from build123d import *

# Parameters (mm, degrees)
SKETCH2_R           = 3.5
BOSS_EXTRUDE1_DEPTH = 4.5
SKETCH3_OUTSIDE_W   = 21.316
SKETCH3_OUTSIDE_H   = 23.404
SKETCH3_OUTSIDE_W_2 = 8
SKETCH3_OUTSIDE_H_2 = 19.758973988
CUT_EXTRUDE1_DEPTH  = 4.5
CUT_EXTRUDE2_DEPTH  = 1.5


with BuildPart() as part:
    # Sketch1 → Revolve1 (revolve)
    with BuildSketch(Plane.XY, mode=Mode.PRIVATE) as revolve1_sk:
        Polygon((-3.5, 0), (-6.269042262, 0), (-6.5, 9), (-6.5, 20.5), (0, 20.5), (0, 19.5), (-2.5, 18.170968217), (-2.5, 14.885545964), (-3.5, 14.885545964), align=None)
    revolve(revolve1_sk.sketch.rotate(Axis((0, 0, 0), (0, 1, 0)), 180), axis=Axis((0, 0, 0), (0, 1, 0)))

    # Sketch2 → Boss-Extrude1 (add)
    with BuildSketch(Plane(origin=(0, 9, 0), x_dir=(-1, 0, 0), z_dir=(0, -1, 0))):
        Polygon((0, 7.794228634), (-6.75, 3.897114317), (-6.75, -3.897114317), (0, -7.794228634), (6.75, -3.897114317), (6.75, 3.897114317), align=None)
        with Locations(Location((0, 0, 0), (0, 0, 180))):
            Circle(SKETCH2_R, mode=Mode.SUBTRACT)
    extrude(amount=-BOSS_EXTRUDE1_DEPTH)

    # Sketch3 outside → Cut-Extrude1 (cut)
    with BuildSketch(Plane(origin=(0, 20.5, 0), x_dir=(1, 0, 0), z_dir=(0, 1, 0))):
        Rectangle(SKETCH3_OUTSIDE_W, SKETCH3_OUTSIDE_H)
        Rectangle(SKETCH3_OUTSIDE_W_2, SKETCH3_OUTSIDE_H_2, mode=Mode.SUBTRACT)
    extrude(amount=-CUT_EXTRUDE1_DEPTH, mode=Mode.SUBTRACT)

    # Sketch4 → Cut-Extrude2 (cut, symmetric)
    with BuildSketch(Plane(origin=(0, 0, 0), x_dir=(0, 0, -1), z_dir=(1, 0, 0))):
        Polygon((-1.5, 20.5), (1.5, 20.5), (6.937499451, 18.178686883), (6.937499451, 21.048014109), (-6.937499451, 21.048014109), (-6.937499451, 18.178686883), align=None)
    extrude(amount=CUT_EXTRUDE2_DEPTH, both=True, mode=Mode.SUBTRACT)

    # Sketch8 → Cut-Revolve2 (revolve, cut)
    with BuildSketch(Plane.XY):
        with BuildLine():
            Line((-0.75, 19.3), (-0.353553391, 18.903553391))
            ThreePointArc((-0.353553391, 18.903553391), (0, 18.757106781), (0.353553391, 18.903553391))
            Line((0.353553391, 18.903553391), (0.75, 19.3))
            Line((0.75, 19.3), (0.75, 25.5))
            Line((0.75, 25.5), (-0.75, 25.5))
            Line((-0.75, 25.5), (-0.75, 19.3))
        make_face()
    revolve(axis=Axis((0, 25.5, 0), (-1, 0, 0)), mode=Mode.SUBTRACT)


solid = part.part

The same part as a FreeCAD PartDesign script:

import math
import FreeCAD as App
import Part
import Sketcher
from FreeCAD import Vector
Q = App.Units.Quantity


def add_polygon(sketch, points):
    """Adds a closed chain of lines whose ends are joined by coincident constraints."""
    first, n = sketch.GeometryCount, len(points)
    for a, b in zip(points, points[1:] + points[:1]):
        sketch.addGeometry(Part.LineSegment(App.Vector(*a, 0), App.Vector(*b, 0)), False)
    for i in range(n):
        sketch.addConstraint(Sketcher.Constraint("Coincident", first + i, 2, first + (i + 1) % n, 1))

doc = App.newDocument("Part")
body = doc.addObject("PartDesign::Body", "Body")

# Sketch on XY plane
sketch1 = body.newObject("Sketcher::SketchObject", "Sketch")
sketch1.AttachmentSupport = (doc.getObject("XY_Plane"), [""])
sketch1.MapMode = "FlatFace"
add_polygon(sketch1, [(-6.269042, 0), (-3.5, 0), (-3.5, 14.885546), (-2.5, 14.885546), (-2.5, 18.170968), (0, 19.5), (0, 20.5), (-6.5, 20.5), (-6.5, 9)])  # lines 0-8
sketch1.addConstraint(Sketcher.Constraint("Horizontal", 0))
sketch1.addConstraint(Sketcher.Constraint("Vertical", 1))
sketch1.addConstraint(Sketcher.Constraint("Horizontal", 2))
sketch1.addConstraint(Sketcher.Constraint("Vertical", 3))
sketch1.addConstraint(Sketcher.Constraint("Vertical", 5))
sketch1.addConstraint(Sketcher.Constraint("Horizontal", 6))
sketch1.addConstraint(Sketcher.Constraint("Vertical", 7))
sketch1.addConstraint(Sketcher.Constraint("PointOnObject", 0, 2, -1))
sketch1.addConstraint(Sketcher.Constraint("PointOnObject", 4, 2, -2))
sketch1.addConstraint(Sketcher.Constraint("Equal", 2, 5))
sketch1.addConstraint(Sketcher.Constraint("DistanceX", 2, 1, 2, 2, 1.0))
sketch1.addConstraint(Sketcher.Constraint("DistanceX", 6, 2, 6, 1, 6.5))
sketch1.addConstraint(Sketcher.Constraint("DistanceY", 7, 2, 7, 1, 11.5))
sketch1.addConstraint(Sketcher.Constraint("DistanceY", -1, 1, 7, 2, 9.0))
sketch1.addConstraint(Sketcher.Constraint("DistanceX", 6, 2, 3, 2, 4.0))
sketch1.addConstraint(Sketcher.Constraint("Angle", 8, Q("-88.53 deg")))
sketch1.addConstraint(Sketcher.Constraint("Distance", 4, 2.831312))
sketch1.addConstraint(Sketcher.Constraint("DistanceY", 1, 1, 1, 2, 14.885546))
revolution = body.newObject("PartDesign::Revolution", "Revolution")
revolution.Profile = sketch1
revolution.ReferenceAxis = (sketch1, ["V_Axis"])
revolution.Angle = 360

# Sketch on XZ plane
sketch2 = body.newObject("Sketcher::SketchObject", "Sketch001")
sketch2.AttachmentSupport = (doc.getObject("XZ_Plane"), [""])
sketch2.MapMode = "FlatFace"
sketch2.AttachmentOffset = App.Placement(Vector(0, 0, -9), App.Rotation())
add_polygon(sketch2, [(0, -7.794229), (6.75, -3.897114), (6.75, 3.897114), (0, 7.794229), (-6.75, 3.897114), (-6.75, -3.897114)])  # lines 0-5
sketch2.addGeometry(Part.Circle(Vector(0, 0, 0), Vector(0, 0, 1), 3.5), False)  # 6
sketch2.addConstraint(Sketcher.Constraint("Vertical", 1))
sketch2.addConstraint(Sketcher.Constraint("Vertical", 4))
sketch2.addConstraint(Sketcher.Constraint("Coincident", 6, 3, -1, 1))
sketch2.addConstraint(Sketcher.Constraint("Symmetric", 0, 2, 3, 2, -1, 1))
sketch2.addConstraint(Sketcher.Constraint("Symmetric", 2, 2, 5, 2, -1, 1))
sketch2.addConstraint(Sketcher.Constraint("PointOnObject", 2, 2, -2))
sketch2.addConstraint(Sketcher.Constraint("Parallel", 2, 5))
sketch2.addConstraint(Sketcher.Constraint("Horizontal", 1, 2, 3, 2))
sketch2.addConstraint(Sketcher.Constraint("Diameter", 6, 7.0))
sketch2.addConstraint(Sketcher.Constraint("Angle", 0, Q("30 deg")))
sketch2.addConstraint(Sketcher.Constraint("DistanceX", 3, 2, 1, 2, 13.5))
sketch2.addConstraint(Sketcher.Constraint("DistanceY", 1, 1, 1, 2, 7.794229))
pad1 = body.newObject("PartDesign::Pad", "Pad")
pad1.Profile = sketch2
pad1.Length = 4.5
pad1.Reversed = True

# Sketch on XZ plane
sketch3 = body.newObject("Sketcher::SketchObject", "Sketch002")
sketch3.AttachmentSupport = (doc.getObject("XZ_Plane"), [""])
sketch3.MapMode = "FlatFace"
sketch3.AttachmentOffset = App.Placement(Vector(0, 0, -20.5), App.Rotation())
add_polygon(sketch3, [(-10.658, -11.702), (-10.658, 11.702), (10.658, 11.702), (10.658, -11.702)])  # lines 0-3
add_polygon(sketch3, [(4, 9.879487), (-4, 9.879487), (-4, -9.879487), (4, -9.879487)])  # lines 4-7
sketch3.addConstraint(Sketcher.Constraint("Vertical", 0))
sketch3.addConstraint(Sketcher.Constraint("Horizontal", 1))
sketch3.addConstraint(Sketcher.Constraint("Vertical", 2))
sketch3.addConstraint(Sketcher.Constraint("Horizontal", 3))
sketch3.addConstraint(Sketcher.Constraint("Horizontal", 4))
sketch3.addConstraint(Sketcher.Constraint("Vertical", 5))
sketch3.addConstraint(Sketcher.Constraint("Horizontal", 6))
sketch3.addConstraint(Sketcher.Constraint("Vertical", 7))
sketch3.addConstraint(Sketcher.Constraint("Symmetric", 0, 2, 2, 2, -1, 1))
sketch3.addConstraint(Sketcher.Constraint("Symmetric", 4, 2, 6, 2, -1, 1))
sketch3.addConstraint(Sketcher.Constraint("DistanceX", 4, 2, 4, 1, 8.0))
sketch3.addConstraint(Sketcher.Constraint("DistanceX", 1, 1, 1, 2, 21.316))
sketch3.addConstraint(Sketcher.Constraint("DistanceY", 0, 1, 0, 2, 23.404))
sketch3.addConstraint(Sketcher.Constraint("DistanceY", 5, 2, 5, 1, 19.758974))
pocket1 = body.newObject("PartDesign::Pocket", "Pocket")
pocket1.Profile = sketch3
pocket1.Length = 4.5
pocket1.Reversed = True

# Sketch on YZ plane
sketch4 = body.newObject("Sketcher::SketchObject", "Sketch003")
sketch4.AttachmentSupport = (doc.getObject("YZ_Plane"), [""])
sketch4.MapMode = "FlatFace"
add_polygon(sketch4, [(20.5, 1.5), (20.5, -1.5), (18.178687, -6.937499), (21.048014, -6.937499), (21.048014, 6.937499), (18.178687, 6.937499)])  # lines 0-5
sketch4.addConstraint(Sketcher.Constraint("Vertical", 0))
sketch4.addConstraint(Sketcher.Constraint("Horizontal", 2))
sketch4.addConstraint(Sketcher.Constraint("Vertical", 3))
sketch4.addConstraint(Sketcher.Constraint("Horizontal", 4))
sketch4.addConstraint(Sketcher.Constraint("Symmetric", 1, 2, 4, 2, -1))
sketch4.addConstraint(Sketcher.Constraint("Equal", 1, 5))
sketch4.addConstraint(Sketcher.Constraint("DistanceY", 0, 2, 0, 1, 3.0))
sketch4.addConstraint(Sketcher.Constraint("DistanceX", -1, 1, 0, 2, 20.5))
sketch4.addConstraint(Sketcher.Constraint("DistanceY", 3, 1, 3, 2, 13.874999))
sketch4.addConstraint(Sketcher.Constraint("DistanceX", 2, 1, 2, 2, 2.869327))
sketch4.addConstraint(Sketcher.Constraint("Distance", 1, 5.912266))
pocket2 = body.newObject("PartDesign::Pocket", "Pocket001")
pocket2.Profile = sketch4
pocket2.Length = 3
pocket2.Midplane = True

# Sketch on XY plane
sketch5 = body.newObject("Sketcher::SketchObject", "Sketch004")
sketch5.AttachmentSupport = (doc.getObject("XY_Plane"), [""])
sketch5.MapMode = "FlatFace"
sketch5.addGeometry(Part.LineSegment(Vector(-0.75, 19.3, 0), Vector(-0.353553, 18.903553, 0)), False)
sketch5.addGeometry(Part.ArcOfCircle(Part.Circle(Vector(0, 19.257107, 0), Vector(0, 0, 1), 0.5), math.radians(-135), math.radians(-45)), False)
sketch5.addGeometry(Part.LineSegment(Vector(0.353553, 18.903553, 0), Vector(0.75, 19.3, 0)), False)
sketch5.addGeometry(Part.LineSegment(Vector(0.75, 19.3, 0), Vector(0.75, 25.5, 0)), False)
sketch5.addGeometry(Part.LineSegment(Vector(0.75, 25.5, 0), Vector(-0.75, 25.5, 0)), False)
sketch5.addGeometry(Part.LineSegment(Vector(-0.75, 25.5, 0), Vector(-0.75, 19.3, 0)), False)
sketch5.addGeometry(Part.LineSegment(Vector(0.75, 25.5, 0), Vector(-0.75, 25.5, 0)), True)  # axis
sketch5.addConstraint(Sketcher.Constraint("Tangent", 0, 2, 1, 1))
sketch5.addConstraint(Sketcher.Constraint("Tangent", 1, 2, 2, 1))
sketch5.addConstraint(Sketcher.Constraint("Coincident", 2, 2, 3, 1))
sketch5.addConstraint(Sketcher.Constraint("Coincident", 3, 2, 4, 1))
sketch5.addConstraint(Sketcher.Constraint("Coincident", 4, 2, 5, 1))
sketch5.addConstraint(Sketcher.Constraint("Coincident", 5, 2, 0, 1))
sketch5.addConstraint(Sketcher.Constraint("Vertical", 3))
sketch5.addConstraint(Sketcher.Constraint("Horizontal", 4))
sketch5.addConstraint(Sketcher.Constraint("Vertical", 5))
sketch5.addConstraint(Sketcher.Constraint("Horizontal", 6))
sketch5.addConstraint(Sketcher.Constraint("Coincident", 6, 1, 3, 2))
sketch5.addConstraint(Sketcher.Constraint("Symmetric", 0, 2, 1, 2, -2))
sketch5.addConstraint(Sketcher.Constraint("Perpendicular", 0, 2))
sketch5.addConstraint(Sketcher.Constraint("Horizontal", 2, 2, 5, 2))
sketch5.addConstraint(Sketcher.Constraint("Vertical", 5, 2, 6, 2))
sketch5.addConstraint(Sketcher.Constraint("Radius", 1, 0.5))
sketch5.addConstraint(Sketcher.Constraint("DistanceX", 4, 2, 4, 1, 1.5))
sketch5.addConstraint(Sketcher.Constraint("DistanceY", 3, 1, 3, 2, 6.2))
sketch5.addConstraint(Sketcher.Constraint("DistanceY", -1, 1, 2, 2, 19.3))
groove = body.newObject("PartDesign::Groove", "Groove")
groove.Profile = sketch5
groove.ReferenceAxis = (sketch5, ["Axis0"])
groove.Angle = 360

doc.recompute()
